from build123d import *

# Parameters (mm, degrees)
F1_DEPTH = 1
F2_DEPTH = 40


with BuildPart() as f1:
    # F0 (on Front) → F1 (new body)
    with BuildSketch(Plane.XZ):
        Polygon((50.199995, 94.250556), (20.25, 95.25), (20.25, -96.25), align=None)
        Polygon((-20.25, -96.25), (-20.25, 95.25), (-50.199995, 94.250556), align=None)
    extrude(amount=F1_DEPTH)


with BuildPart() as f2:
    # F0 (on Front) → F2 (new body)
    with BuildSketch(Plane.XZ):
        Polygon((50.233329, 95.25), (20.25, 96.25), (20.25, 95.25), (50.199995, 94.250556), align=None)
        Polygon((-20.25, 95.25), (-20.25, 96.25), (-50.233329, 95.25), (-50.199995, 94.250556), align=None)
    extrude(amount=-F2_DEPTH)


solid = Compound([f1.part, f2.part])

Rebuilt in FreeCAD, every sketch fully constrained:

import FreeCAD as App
import Part
import Sketcher

V = App.Vector


def add_polygon(sketch, points):
    """Adds a closed chain of lines whose ends are joined by coincident constraints."""
    first, n = sketch.GeometryCount, len(points)
    for a, b in zip(points, points[1:] + points[:1]):
        sketch.addGeometry(Part.LineSegment(App.Vector(*a, 0), App.Vector(*b, 0)), False)
    for i in range(n):
        sketch.addConstraint(Sketcher.Constraint("Coincident", first + i, 2, first + (i + 1) % n, 1))

doc = App.newDocument("Part")
params = doc.addObject("Spreadsheet::Sheet", "Params")
for row, (alias, value) in enumerate([
    ("sketch1_height", "191.5 mm"),
    ("pad1_length", "1 mm"),
    ("sketch2_height", "1 mm"),
    ("sketch2_length", "30 mm"),
    ("sketch2_length2", "1 mm"),
    ("pad2_length", "40 mm"),
], start=1):
    params.set(f"A{row}", alias)
    params.set(f"B{row}", "=" + value)
    params.setAlias(f"B{row}", alias)

body = doc.addObject("PartDesign::Body", "Body")
body.AllowCompound = True

sketch1 = doc.addObject("Sketcher::SketchObject", "Sketch")
body.addObject(sketch1)
sketch1.AttachmentSupport = (doc.XZ_Plane, [""])
sketch1.MapMode = "FlatFace"
add_polygon(sketch1, [(50, 94), (20, 95), (20, -96)])
add_polygon(sketch1, [(-20, -96), (-20, 95), (-50, 94)])
sketch1.addConstraint(Sketcher.Constraint("Vertical", 1))
sketch1.addConstraint(Sketcher.Constraint("Vertical", 3))
sketch1.addConstraint(Sketcher.Constraint("Symmetric", 0, 2, 3, 2, -2))
sketch1.addConstraint(Sketcher.Constraint("Symmetric", 2, 2, 4, 2, -2))
sketch1.addConstraint(Sketcher.Constraint("Horizontal", 1, 2, 5, 2))
sketch1.addConstraint(Sketcher.Constraint("DistanceY", 1, 2, 1, 1, 191.5))
sketch1.addConstraint(Sketcher.Constraint("DistanceX", 3, 2, 0, 2, 40.5))
sketch1.addConstraint(Sketcher.Constraint("DistanceY", -1, 1, 0, 2, 95.25))
sketch1.addConstraint(Sketcher.Constraint("DistanceX", 4, 2, 2, 2, 100.39999))
sketch1.addConstraint(Sketcher.Constraint("Distance", 0, 29.966666))
sketch1.setExpression("Constraints[11]", "Params.sketch1_height")
pad1 = doc.addObject("PartDesign::Pad", "Pad")
body.addObject(pad1)
pad1.Profile = sketch1
pad1.setExpression("Length", "Params.pad1_length")
body2 = doc.addObject("PartDesign::Body", "Body001")
body2.AllowCompound = True

sketch2 = doc.addObject("Sketcher::SketchObject", "Sketch001")
body2.addObject(sketch2)
sketch2.AttachmentSupport = (doc.getObject("XZ_Plane001"), [""])
sketch2.MapMode = "FlatFace"
add_polygon(sketch2, [(50.2, 95.2), (20.2, 96.2), (20.2, 95.2), (50.2, 94.3)])
add_polygon(sketch2, [(-20.2, 95.2), (-20.2, 96.2), (-50.2, 95.2), (-50.2, 94.3)])
sketch2.addConstraint(Sketcher.Constraint("Vertical", 1))
sketch2.addConstraint(Sketcher.Constraint("Vertical", 4))
sketch2.addConstraint(Sketcher.Constraint("Symmetric", 0, 2, 4, 2, -2))
sketch2.addConstraint(Sketcher.Constraint("Symmetric", 3, 2, 5, 2, -2))
sketch2.addConstraint(Sketcher.Constraint("Symmetric", 2, 2, 6, 2, -2))
sketch2.addConstraint(Sketcher.Constraint("Perpendicular", 0, 3))
sketch2.addConstraint(Sketcher.Constraint("Horizontal", 1, 2, 3, 2))
sketch2.addConstraint(Sketcher.Constraint("Horizontal", 5, 2, 7, 2))
sketch2.addConstraint(Sketcher.Constraint("DistanceY", 1, 2, 1, 1, 1.0))
sketch2.addConstraint(Sketcher.Constraint("Distance", 0, 30.0))
sketch2.addConstraint(Sketcher.Constraint("Distance", 3, 1.0))
sketch2.addConstraint(Sketcher.Constraint("DistanceX", 4, 2, 0, 2, 40.5))
sketch2.addConstraint(Sketcher.Constraint("DistanceY", -1, 1, 0, 2, 96.25))
sketch2.setExpression("Constraints[16]", "Params.sketch2_height")
sketch2.setExpression("Constraints[17]", "Params.sketch2_length")
sketch2.setExpression("Constraints[18]", "Params.sketch2_length2")
pad2 = doc.addObject("PartDesign::Pad", "Pad001")
body2.addObject(pad2)
pad2.Profile = sketch2
pad2.setExpression("Length", "Params.pad2_length")
pad2.Reversed = True

doc.recompute()
